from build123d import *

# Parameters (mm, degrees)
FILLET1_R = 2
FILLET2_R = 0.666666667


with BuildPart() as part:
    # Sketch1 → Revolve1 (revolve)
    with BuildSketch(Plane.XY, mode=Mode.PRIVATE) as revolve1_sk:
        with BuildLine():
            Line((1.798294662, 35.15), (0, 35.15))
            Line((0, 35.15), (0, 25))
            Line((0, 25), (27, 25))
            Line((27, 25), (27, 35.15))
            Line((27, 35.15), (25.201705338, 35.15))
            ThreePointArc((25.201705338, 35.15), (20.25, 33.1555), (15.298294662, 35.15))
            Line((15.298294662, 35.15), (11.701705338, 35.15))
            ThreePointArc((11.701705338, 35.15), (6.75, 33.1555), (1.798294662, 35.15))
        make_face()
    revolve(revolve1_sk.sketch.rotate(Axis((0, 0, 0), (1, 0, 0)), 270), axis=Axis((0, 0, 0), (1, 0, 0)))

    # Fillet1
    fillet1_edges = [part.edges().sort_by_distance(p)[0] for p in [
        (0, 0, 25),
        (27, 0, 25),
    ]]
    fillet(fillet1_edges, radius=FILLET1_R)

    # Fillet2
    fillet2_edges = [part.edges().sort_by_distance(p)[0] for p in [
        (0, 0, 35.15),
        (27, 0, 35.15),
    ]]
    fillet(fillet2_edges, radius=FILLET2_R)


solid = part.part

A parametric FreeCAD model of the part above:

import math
import FreeCAD as App
import Part
import Sketcher
from FreeCAD import Vector


def edges_at(feature, points):
    """Names of the edges that pass closest to the given points."""
    edges = feature.Shape.Edges
    near = lambda p: min(range(len(edges)), key=lambda i: edges[i].distToShape(Part.Vertex(*p))[0])
    return sorted({f"Edge{near(p) + 1}" for p in points})

doc = App.newDocument("Part")
body = doc.addObject("PartDesign::Body", "Body")

# Sketch on XY plane
sketch1 = body.newObject("Sketcher::SketchObject", "Sketch")
sketch1.AttachmentSupport = (doc.getObject("XY_Plane"), [""])
sketch1.MapMode = "FlatFace"
sketch1.addGeometry([
    Part.LineSegment(Vector(1.8, 35.1, 0), Vector(0, 35.1, 0)),  # 0
    Part.LineSegment(Vector(0, 35.1, 0), Vector(0, 25, 0)),  # 1
    Part.LineSegment(Vector(0, 25, 0), Vector(27, 25, 0)),  # 2
    Part.LineSegment(Vector(27, 25, 0), Vector(27, 35.1, 0)),  # 3
    Part.LineSegment(Vector(27, 35.1, 0), Vector(25.2, 35.1, 0)),  # 4
    Part.ArcOfCircle(Part.Circle(Vector(20.2, 40.3, 0), Vector(0, 0, 1), 7.1), math.radians(-134), math.radians(-46)),  # 5
    Part.LineSegment(Vector(15.3, 35.1, 0), Vector(11.7, 35.1, 0)),  # 6
    Part.ArcOfCircle(Part.Circle(Vector(6.8, 40.3, 0), Vector(0, 0, 1), 7.1), math.radians(-134), math.radians(-46)),  # 7
], False)
sketch1.addConstraint([
    Sketcher.Constraint("Coincident", 0, 2, 1, 1),
    Sketcher.Constraint("Coincident", 1, 2, 2, 1),
    Sketcher.Constraint("Coincident", 2, 2, 3, 1),
    Sketcher.Constraint("Coincident", 3, 2, 4, 1),
    Sketcher.Constraint("Coincident", 4, 2, 5, 2),
    Sketcher.Constraint("Coincident", 5, 1, 6, 1),
    Sketcher.Constraint("Coincident", 6, 2, 7, 2),
    Sketcher.Constraint("Coincident", 7, 1, 0, 1),
    Sketcher.Constraint("Horizontal", 0),
    Sketcher.Constraint("Vertical", 1),
    Sketcher.Constraint("Horizontal", 2),
    Sketcher.Constraint("Vertical", 3),
    Sketcher.Constraint("Horizontal", 4),
    Sketcher.Constraint("Horizontal", 6),
    Sketcher.Constraint("Equal", 5, 7),
    Sketcher.Constraint("PointOnObject", 0, 2, -2),
    Sketcher.Constraint("Horizontal", 5, 3, 7, 3),
    Sketcher.Constraint("Horizontal", 0, 2, 3, 2),
    Sketcher.Constraint("Horizontal", 4, 2, 5, 1),
    Sketcher.Constraint("Equal", 0, 4),
    Sketcher.Constraint("DistanceX", 2, 1, 2, 2, 27.0),
    Sketcher.Constraint("DistanceY", -1, 1, 1, 2, 25.0),
    Sketcher.Constraint("Radius", 5, 7.144),
    Sketcher.Constraint("DistanceY", 1, 2, 1, 1, 10.15),
    Sketcher.Constraint("DistanceX", 7, 3, 5, 3, 13.5),
    Sketcher.Constraint("DistanceX", 6, 2, 6, 1, 3.596589),
])
revolution = body.newObject("PartDesign::Revolution", "Revolution")
revolution.Profile = sketch1
revolution.ReferenceAxis = (sketch1, ["H_Axis"])
revolution.Angle = 360
doc.recompute()

fillet = body.newObject("PartDesign::Fillet", "Fillet")
fillet.Base = (revolution, edges_at(revolution, [(0, 0, 25), (27, 0, 25)]))
fillet.Radius = 2
doc.recompute()

fillet2 = body.newObject("PartDesign::Fillet", "Fillet001")
fillet2.Base = (fillet, edges_at(fillet, [(0, 0, 35.15), (27, 0, 35.15)]))
fillet2.Radius = 0.666667

doc.recompute()
